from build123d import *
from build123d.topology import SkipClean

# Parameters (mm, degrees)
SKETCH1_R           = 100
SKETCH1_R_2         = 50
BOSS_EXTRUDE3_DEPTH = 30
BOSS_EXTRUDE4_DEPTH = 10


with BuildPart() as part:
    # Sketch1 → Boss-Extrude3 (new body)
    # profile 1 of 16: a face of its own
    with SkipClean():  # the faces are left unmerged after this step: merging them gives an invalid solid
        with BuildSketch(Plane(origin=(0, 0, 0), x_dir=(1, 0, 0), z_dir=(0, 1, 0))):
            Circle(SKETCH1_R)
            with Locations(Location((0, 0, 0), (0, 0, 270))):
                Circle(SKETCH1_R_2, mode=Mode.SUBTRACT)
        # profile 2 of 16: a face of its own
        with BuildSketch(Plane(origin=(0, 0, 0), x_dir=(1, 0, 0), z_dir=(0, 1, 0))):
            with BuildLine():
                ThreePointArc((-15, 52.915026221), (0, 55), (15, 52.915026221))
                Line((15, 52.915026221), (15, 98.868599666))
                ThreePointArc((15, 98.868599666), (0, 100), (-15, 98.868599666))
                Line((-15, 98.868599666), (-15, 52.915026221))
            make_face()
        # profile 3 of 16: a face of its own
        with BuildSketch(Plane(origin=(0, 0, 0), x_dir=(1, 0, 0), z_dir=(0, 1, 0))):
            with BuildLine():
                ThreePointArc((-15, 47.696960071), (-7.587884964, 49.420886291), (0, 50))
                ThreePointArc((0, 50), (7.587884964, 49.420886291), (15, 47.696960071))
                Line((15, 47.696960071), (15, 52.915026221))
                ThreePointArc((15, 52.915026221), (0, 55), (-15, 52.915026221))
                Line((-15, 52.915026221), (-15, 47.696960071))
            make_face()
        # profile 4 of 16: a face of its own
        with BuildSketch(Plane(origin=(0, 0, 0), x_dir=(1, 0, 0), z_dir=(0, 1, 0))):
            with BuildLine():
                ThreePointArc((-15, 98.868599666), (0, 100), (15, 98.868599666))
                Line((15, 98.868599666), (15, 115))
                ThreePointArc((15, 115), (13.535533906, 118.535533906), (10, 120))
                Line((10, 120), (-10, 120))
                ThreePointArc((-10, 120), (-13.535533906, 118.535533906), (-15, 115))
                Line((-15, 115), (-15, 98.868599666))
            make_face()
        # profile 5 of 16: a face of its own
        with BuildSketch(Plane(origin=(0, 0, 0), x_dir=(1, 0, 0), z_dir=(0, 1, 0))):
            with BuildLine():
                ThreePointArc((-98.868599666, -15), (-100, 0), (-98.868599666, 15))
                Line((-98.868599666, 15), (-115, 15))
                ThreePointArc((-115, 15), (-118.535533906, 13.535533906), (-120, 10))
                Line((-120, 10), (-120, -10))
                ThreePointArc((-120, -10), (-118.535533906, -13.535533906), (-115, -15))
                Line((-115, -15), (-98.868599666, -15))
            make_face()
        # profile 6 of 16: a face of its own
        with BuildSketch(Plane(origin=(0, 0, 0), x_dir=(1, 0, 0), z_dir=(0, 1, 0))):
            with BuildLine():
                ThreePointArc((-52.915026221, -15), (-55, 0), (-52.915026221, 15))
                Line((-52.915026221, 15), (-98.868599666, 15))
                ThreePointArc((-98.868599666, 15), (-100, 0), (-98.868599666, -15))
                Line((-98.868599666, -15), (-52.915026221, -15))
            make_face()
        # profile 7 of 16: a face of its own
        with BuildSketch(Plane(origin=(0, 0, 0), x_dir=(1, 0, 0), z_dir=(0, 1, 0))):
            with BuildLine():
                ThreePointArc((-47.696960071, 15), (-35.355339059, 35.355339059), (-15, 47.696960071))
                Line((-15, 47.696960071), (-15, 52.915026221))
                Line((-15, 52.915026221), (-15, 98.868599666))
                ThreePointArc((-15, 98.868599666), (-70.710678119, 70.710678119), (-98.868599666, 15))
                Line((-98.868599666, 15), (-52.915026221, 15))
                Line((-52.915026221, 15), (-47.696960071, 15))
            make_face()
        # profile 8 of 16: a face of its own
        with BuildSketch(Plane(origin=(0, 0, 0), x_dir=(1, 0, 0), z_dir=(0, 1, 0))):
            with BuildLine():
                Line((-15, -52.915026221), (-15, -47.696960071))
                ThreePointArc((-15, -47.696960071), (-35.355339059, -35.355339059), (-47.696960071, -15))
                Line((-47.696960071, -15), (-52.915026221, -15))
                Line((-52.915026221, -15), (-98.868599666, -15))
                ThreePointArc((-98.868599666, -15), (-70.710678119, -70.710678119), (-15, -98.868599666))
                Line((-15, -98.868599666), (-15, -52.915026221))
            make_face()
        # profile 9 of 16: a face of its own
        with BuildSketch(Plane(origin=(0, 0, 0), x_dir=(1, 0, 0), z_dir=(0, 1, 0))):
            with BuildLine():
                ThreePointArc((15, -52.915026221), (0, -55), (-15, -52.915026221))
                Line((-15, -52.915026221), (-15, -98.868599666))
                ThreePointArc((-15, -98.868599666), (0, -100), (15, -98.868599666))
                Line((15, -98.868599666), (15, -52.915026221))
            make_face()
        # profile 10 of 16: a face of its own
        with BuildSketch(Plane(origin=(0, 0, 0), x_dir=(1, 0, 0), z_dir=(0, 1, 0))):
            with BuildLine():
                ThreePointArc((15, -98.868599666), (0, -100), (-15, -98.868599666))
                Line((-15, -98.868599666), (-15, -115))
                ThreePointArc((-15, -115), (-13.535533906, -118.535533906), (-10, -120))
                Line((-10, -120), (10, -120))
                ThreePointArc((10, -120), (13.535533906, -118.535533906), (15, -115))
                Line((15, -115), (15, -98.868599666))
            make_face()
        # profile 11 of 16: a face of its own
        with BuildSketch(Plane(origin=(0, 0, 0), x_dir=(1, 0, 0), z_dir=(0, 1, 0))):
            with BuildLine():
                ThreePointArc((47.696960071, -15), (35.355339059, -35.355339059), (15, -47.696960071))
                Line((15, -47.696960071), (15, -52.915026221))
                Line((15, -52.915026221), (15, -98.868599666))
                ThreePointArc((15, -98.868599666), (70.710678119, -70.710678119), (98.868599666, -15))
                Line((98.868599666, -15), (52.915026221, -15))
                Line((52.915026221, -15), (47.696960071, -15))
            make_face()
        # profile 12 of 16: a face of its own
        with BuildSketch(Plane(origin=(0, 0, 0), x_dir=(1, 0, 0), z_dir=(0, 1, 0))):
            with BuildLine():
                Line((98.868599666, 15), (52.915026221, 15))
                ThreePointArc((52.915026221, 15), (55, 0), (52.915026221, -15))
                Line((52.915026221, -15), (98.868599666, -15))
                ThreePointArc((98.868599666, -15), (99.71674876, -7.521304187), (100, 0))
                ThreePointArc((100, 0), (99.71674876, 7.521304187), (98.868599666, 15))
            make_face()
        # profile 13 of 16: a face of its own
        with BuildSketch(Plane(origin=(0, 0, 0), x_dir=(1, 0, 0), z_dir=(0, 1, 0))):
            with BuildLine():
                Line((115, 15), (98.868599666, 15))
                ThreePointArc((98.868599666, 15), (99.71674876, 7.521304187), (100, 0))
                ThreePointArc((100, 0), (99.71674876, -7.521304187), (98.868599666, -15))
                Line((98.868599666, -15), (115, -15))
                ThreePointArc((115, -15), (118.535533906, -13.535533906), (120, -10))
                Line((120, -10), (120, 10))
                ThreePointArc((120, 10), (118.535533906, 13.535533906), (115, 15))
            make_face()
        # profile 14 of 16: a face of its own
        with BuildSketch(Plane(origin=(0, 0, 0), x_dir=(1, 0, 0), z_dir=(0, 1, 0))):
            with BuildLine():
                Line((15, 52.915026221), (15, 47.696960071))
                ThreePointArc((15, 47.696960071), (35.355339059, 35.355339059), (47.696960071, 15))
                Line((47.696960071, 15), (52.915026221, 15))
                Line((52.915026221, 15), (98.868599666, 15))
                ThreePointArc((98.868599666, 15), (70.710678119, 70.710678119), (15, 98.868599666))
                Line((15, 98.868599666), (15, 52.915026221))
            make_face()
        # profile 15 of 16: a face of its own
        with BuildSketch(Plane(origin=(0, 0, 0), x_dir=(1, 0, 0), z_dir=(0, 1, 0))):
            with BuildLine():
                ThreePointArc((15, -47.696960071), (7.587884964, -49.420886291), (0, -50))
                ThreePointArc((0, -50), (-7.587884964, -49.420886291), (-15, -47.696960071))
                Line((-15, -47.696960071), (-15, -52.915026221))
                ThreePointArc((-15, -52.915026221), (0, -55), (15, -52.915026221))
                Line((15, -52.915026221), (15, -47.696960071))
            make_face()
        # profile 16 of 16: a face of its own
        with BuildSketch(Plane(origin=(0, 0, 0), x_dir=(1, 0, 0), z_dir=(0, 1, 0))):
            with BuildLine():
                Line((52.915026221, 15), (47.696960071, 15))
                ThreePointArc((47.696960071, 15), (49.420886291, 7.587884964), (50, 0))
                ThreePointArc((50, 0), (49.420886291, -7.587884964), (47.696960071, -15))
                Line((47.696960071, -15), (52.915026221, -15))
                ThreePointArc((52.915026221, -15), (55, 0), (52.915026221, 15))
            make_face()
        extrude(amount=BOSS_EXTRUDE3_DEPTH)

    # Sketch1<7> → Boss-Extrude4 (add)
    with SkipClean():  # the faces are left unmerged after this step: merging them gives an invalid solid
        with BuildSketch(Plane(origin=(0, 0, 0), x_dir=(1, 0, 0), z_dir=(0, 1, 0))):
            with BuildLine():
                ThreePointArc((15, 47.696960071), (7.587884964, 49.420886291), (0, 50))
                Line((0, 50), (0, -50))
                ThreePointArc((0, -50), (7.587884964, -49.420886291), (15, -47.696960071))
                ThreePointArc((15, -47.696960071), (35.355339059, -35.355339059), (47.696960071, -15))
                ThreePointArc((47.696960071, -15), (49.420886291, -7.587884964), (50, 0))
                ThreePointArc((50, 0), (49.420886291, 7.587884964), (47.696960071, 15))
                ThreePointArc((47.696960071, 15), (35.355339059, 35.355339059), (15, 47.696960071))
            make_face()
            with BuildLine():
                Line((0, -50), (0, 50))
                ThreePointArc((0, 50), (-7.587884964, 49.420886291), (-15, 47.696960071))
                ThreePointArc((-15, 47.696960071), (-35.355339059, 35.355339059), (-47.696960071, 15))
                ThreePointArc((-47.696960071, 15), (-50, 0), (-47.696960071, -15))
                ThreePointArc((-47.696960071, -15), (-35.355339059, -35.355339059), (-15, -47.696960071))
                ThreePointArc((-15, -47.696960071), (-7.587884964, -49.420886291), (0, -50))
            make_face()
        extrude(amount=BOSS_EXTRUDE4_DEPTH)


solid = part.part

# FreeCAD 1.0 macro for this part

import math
import FreeCAD as App
import Part
import Sketcher
from FreeCAD import Vector
Q = App.Units.Quantity

doc = App.newDocument("Part")
body = doc.addObject("PartDesign::Body", "Body")

sketch1 = body.newObject("Sketcher::SketchObject", "Sketch")
sketch1.AttachmentSupport = (doc.getObject("XZ_Plane"), [""])
sketch1.MapMode = "FlatFace"
sketch1.addGeometry([
    Part.LineSegment(Vector(115, -15, 0), Vector(98.8686, -15, 0)),
    Part.ArcOfCircle(Part.Circle(Vector(0, 0, 0), Vector(0, 0, 1), 100), math.radians(-81.373073), math.radians(-8.626927)),
    Part.LineSegment(Vector(15, -98.8686, 0), Vector(15, -115, 0)),
    Part.ArcOfCircle(Part.Circle(Vector(10, -115, 0), Vector(0, 0, 1), 5), math.radians(-90), math.radians(0)),
    Part.LineSegment(Vector(10, -120, 0), Vector(-10, -120, 0)),
    Part.ArcOfCircle(Part.Circle(Vector(-10, -115, 0), Vector(0, 0, 1), 5), math.radians(180), math.radians(270)),
    Part.LineSegment(Vector(-15, -115, 0), Vector(-15, -98.8686, 0)),
    Part.ArcOfCircle(Part.Circle(Vector(0, 0, 0), Vector(0, 0, 1), 100), math.radians(-171.373073), math.radians(-98.626927)),
    Part.LineSegment(Vector(-98.8686, -15, 0), Vector(-115, -15, 0)),
    Part.ArcOfCircle(Part.Circle(Vector(-115, -10, 0), Vector(0, 0, 1), 5), math.radians(180), math.radians(270)),
    Part.LineSegment(Vector(-120, -10, 0), Vector(-120, 10, 0)),
    Part.ArcOfCircle(Part.Circle(Vector(-115, 10, 0), Vector(0, 0, 1), 5), math.radians(90), math.radians(180)),
    Part.LineSegment(Vector(-115, 15, 0), Vector(-98.8686, 15, 0)),
    Part.ArcOfCircle(Part.Circle(Vector(0, 0, 0), Vector(0, 0, 1), 100), math.radians(98.626927), math.radians(171.373073)),
    Part.LineSegment(Vector(-15, 98.8686, 0), Vector(-15, 115, 0)),
    Part.ArcOfCircle(Part.Circle(Vector(-10, 115, 0), Vector(0, 0, 1), 5), math.radians(90), math.radians(180)),
    Part.LineSegment(Vector(-10, 120, 0), Vector(10, 120, 0)),
    Part.ArcOfCircle(Part.Circle(Vector(10, 115, 0), Vector(0, 0, 1), 5), math.radians(0), math.radians(90)),
    Part.LineSegment(Vector(15, 115, 0), Vector(15, 98.8686, 0)),
    Part.ArcOfCircle(Part.Circle(Vector(0, 0, 0), Vector(0, 0, 1), 100), math.radians(8.626927), math.radians(81.373073)),
    Part.LineSegment(Vector(98.8686, 15, 0), Vector(115, 15, 0)),
    Part.ArcOfCircle(Part.Circle(Vector(115, 10, 0), Vector(0, 0, 1), 5), math.radians(0), math.radians(90)),
    Part.LineSegment(Vector(120, 10, 0), Vector(120, -10, 0)),
    Part.ArcOfCircle(Part.Circle(Vector(115, -10, 0), Vector(0, 0, 1), 5), math.radians(-90), math.radians(0)),
    Part.Circle(Vector(0, 0, 0), Vector(0, 0, 1), 50),
], False)
sketch1.addConstraint([
    Sketcher.Constraint("Coincident", 0, 2, 1, 2),
    Sketcher.Constraint("Coincident", 1, 1, 2, 1),
    Sketcher.Constraint("Tangent", 2, 2, 3, 2),
    Sketcher.Constraint("Tangent", 3, 1, 4, 1),
    Sketcher.Constraint("Tangent", 4, 2, 5, 2),
    Sketcher.Constraint("Tangent", 5, 1, 6, 1),
    Sketcher.Constraint("Coincident", 6, 2, 7, 2),
    Sketcher.Constraint("Coincident", 7, 1, 8, 1),
    Sketcher.Constraint("Tangent", 8, 2, 9, 2),
    Sketcher.Constraint("Tangent", 9, 1, 10, 1),
    Sketcher.Constraint("Tangent", 10, 2, 11, 2),
    Sketcher.Constraint("Tangent", 11, 1, 12, 1),
    Sketcher.Constraint("Coincident", 12, 2, 13, 2),
    Sketcher.Constraint("Coincident", 13, 1, 14, 1),
    Sketcher.Constraint("Tangent", 14, 2, 15, 2),
    Sketcher.Constraint("Tangent", 15, 1, 16, 1),
    Sketcher.Constraint("Tangent", 16, 2, 17, 2),
    Sketcher.Constraint("Tangent", 17, 1, 18, 1),
    Sketcher.Constraint("Coincident", 18, 2, 19, 2),
    Sketcher.Constraint("Coincident", 19, 1, 20, 1),
    Sketcher.Constraint("Tangent", 20, 2, 21, 2),
    Sketcher.Constraint("Tangent", 21, 1, 22, 1),
    Sketcher.Constraint("Tangent", 22, 2, 23, 2),
    Sketcher.Constraint("Tangent", 23, 1, 0, 1),
    Sketcher.Constraint("Horizontal", 0),
    Sketcher.Constraint("Vertical", 2),
    Sketcher.Constraint("Horizontal", 4),
    Sketcher.Constraint("Vertical", 6),
    Sketcher.Constraint("Horizontal", 8),
    Sketcher.Constraint("Vertical", 10),
    Sketcher.Constraint("Horizontal", 12),
    Sketcher.Constraint("Vertical", 14),
    Sketcher.Constraint("Horizontal", 16),
    Sketcher.Constraint("Vertical", 18),
    Sketcher.Constraint("Horizontal", 20),
    Sketcher.Constraint("Vertical", 22),
    Sketcher.Constraint("Coincident", 1, 3, -1, 1),
    Sketcher.Constraint("Coincident", 7, 3, -1, 1),
    Sketcher.Constraint("Coincident", 13, 3, -1, 1),
    Sketcher.Constraint("Coincident", 19, 3, -1, 1),
    Sketcher.Constraint("Coincident", 24, 3, -1, 1),
    Sketcher.Constraint("Equal", 3, 5),
    Sketcher.Constraint("Equal", 1, 7),
    Sketcher.Constraint("Equal", 5, 9),
    Sketcher.Constraint("Equal", 9, 11),
    Sketcher.Constraint("Equal", 7, 13),
    Sketcher.Constraint("Equal", 11, 15),
    Sketcher.Constraint("Equal", 15, 17),
    Sketcher.Constraint("Equal", 13, 19),
    Sketcher.Constraint("Equal", 17, 21),
    Sketcher.Constraint("Equal", 21, 23),
    Sketcher.Constraint("Symmetric", 3, 3, 15, 3, -1, 1),
    Sketcher.Constraint("Symmetric", 9, 3, 21, 3, -1, 1),
    Sketcher.Constraint("Horizontal", 11, 3, 21, 3),
    Sketcher.Constraint("Horizontal", 9, 3, 23, 3),
    Sketcher.Constraint("Horizontal", 1, 1, 6, 2),
    Sketcher.Constraint("Horizontal", 13, 1, 18, 2),
    Sketcher.Constraint("Equal", 20, 2),
    Sketcher.Constraint("Equal", 16, 10),
    Sketcher.Constraint("Diameter", 24, Q("100 mm")),
    Sketcher.Constraint("Radius", 1, Q("100 mm")),
    Sketcher.Constraint("Radius", 3, Q("5 mm")),
    Sketcher.Constraint("DistanceX", 4, 2, 4, 1, Q("20 mm")),
    Sketcher.Constraint("DistanceY", 3, 3, -1, 1, Q("115 mm")),
])
pad1 = body.newObject("PartDesign::Pad", "Pad")
pad1.Profile = sketch1
pad1.Length = 30
pad1.Reversed = True

sketch2 = body.newObject("Sketcher::SketchObject", "Sketch001")
sketch2.AttachmentSupport = (doc.getObject("XZ_Plane"), [""])
sketch2.MapMode = "FlatFace"
sketch2.addGeometry([
    Part.ArcOfCircle(Part.Circle(Vector(0, 0, 0), Vector(0, 0, 1), 50), math.radians(-90), math.radians(-72.542397)),
    Part.LineSegment(Vector(0, -50, 0), Vector(0, 50, 0)),
    Part.ArcOfCircle(Part.Circle(Vector(0, 0, 0), Vector(0, 0, 1), 50), math.radians(72.542397), math.radians(90)),
    Part.ArcOfCircle(Part.Circle(Vector(0, 0, 0), Vector(0, 0, 1), 50), math.radians(17.457603), math.radians(72.542397)),
    Part.ArcOfCircle(Part.Circle(Vector(0, 0, 0), Vector(0, 0, 1), 50), math.radians(0), math.radians(17.457603)),
    Part.ArcOfCircle(Part.Circle(Vector(0, 0, 0), Vector(0, 0, 1), 50), math.radians(-17.457603), math.radians(0)),
    Part.ArcOfCircle(Part.Circle(Vector(0, 0, 0), Vector(0, 0, 1), 50), math.radians(-72.542397), math.radians(-17.457603)),
    Part.LineSegment(Vector(0, 50, 0), Vector(0, -50, 0)),
    Part.ArcOfCircle(Part.Circle(Vector(0, 0, 0), Vector(0, 0, 1), 50), math.radians(-107.457603), math.radians(-90)),
    Part.ArcOfCircle(Part.Circle(Vector(0, 0, 0), Vector(0, 0, 1), 50), math.radians(-162.542397), math.radians(-107.457603)),
    Part.ArcOfCircle(Part.Circle(Vector(0, 0, 0), Vector(0, 0, 1), 50), math.radians(162.542397), math.radians(197.457603)),
    Part.ArcOfCircle(Part.Circle(Vector(0, 0, 0), Vector(0, 0, 1), 50), math.radians(107.457603), math.radians(162.542397)),
    Part.ArcOfCircle(Part.Circle(Vector(0, 0, 0), Vector(0, 0, 1), 50), math.radians(90), math.radians(107.457603)),
], False)
sketch2.addConstraint([
    Sketcher.Constraint("Coincident", 0, 1, 1, 1),
    Sketcher.Constraint("Coincident", 1, 2, 2, 2),
    Sketcher.Constraint("Tangent", 2, 1, 3, 2),
    Sketcher.Constraint("Tangent", 3, 1, 4, 2),
    Sketcher.Constraint("Tangent", 4, 1, 5, 2),
    Sketcher.Constraint("Tangent", 5, 1, 6, 2),
    Sketcher.Constraint("Tangent", 6, 1, 0, 2),
    Sketcher.Constraint("Coincident", 7, 2, 8, 2),
    Sketcher.Constraint("Tangent", 8, 1, 9, 2),
    Sketcher.Constraint("Tangent", 9, 1, 10, 2),
    Sketcher.Constraint("Tangent", 10, 1, 11, 2),
    Sketcher.Constraint("Tangent", 11, 1, 12, 2),
    Sketcher.Constraint("Coincident", 12, 1, 7, 1),
    Sketcher.Constraint("Vertical", 1),
    Sketcher.Constraint("Vertical", 7),
    Sketcher.Constraint("Coincident", 0, 3, -1, 1),
    Sketcher.Constraint("Coincident", 2, 3, -1, 1),
    Sketcher.Constraint("Coincident", 4, 3, -1, 1),
    Sketcher.Constraint("Coincident", 8, 3, -1, 1),
    Sketcher.Constraint("Coincident", 10, 3, -1, 1),
    Sketcher.Constraint("Coincident", 12, 3, -1, 1),
    Sketcher.Constraint("Coincident", 7, 2, 0, 1),
    Sketcher.Constraint("Equal", 0, 2),
    Sketcher.Constraint("PointOnObject", 0, 1, -2),
    Sketcher.Constraint("PointOnObject", 4, 1, -1),
    Sketcher.Constraint("Horizontal", 6, 1, 8, 1),
    Sketcher.Constraint("Horizontal", 5, 1, 9, 1),
    Sketcher.Constraint("Horizontal", 3, 1, 10, 1),
    Sketcher.Constraint("Horizontal", 2, 1, 11, 1),
    Sketcher.Constraint("Vertical", 3, 1, 5, 1),
    Sketcher.Constraint("Vertical", 2, 1, 6, 1),
    Sketcher.Constraint("Radius", 0, Q("50 mm")),
    Sketcher.Constraint("DistanceX", -1, 1, 2, 1, Q("15 mm")),
    Sketcher.Constraint("DistanceY", -1, 1, 3, 1, Q("15 mm")),
])
pad2 = body.newObject("PartDesign::Pad", "Pad001")
pad2.Profile = sketch2
pad2.Length = 10
pad2.Reversed = True

doc.recompute()
